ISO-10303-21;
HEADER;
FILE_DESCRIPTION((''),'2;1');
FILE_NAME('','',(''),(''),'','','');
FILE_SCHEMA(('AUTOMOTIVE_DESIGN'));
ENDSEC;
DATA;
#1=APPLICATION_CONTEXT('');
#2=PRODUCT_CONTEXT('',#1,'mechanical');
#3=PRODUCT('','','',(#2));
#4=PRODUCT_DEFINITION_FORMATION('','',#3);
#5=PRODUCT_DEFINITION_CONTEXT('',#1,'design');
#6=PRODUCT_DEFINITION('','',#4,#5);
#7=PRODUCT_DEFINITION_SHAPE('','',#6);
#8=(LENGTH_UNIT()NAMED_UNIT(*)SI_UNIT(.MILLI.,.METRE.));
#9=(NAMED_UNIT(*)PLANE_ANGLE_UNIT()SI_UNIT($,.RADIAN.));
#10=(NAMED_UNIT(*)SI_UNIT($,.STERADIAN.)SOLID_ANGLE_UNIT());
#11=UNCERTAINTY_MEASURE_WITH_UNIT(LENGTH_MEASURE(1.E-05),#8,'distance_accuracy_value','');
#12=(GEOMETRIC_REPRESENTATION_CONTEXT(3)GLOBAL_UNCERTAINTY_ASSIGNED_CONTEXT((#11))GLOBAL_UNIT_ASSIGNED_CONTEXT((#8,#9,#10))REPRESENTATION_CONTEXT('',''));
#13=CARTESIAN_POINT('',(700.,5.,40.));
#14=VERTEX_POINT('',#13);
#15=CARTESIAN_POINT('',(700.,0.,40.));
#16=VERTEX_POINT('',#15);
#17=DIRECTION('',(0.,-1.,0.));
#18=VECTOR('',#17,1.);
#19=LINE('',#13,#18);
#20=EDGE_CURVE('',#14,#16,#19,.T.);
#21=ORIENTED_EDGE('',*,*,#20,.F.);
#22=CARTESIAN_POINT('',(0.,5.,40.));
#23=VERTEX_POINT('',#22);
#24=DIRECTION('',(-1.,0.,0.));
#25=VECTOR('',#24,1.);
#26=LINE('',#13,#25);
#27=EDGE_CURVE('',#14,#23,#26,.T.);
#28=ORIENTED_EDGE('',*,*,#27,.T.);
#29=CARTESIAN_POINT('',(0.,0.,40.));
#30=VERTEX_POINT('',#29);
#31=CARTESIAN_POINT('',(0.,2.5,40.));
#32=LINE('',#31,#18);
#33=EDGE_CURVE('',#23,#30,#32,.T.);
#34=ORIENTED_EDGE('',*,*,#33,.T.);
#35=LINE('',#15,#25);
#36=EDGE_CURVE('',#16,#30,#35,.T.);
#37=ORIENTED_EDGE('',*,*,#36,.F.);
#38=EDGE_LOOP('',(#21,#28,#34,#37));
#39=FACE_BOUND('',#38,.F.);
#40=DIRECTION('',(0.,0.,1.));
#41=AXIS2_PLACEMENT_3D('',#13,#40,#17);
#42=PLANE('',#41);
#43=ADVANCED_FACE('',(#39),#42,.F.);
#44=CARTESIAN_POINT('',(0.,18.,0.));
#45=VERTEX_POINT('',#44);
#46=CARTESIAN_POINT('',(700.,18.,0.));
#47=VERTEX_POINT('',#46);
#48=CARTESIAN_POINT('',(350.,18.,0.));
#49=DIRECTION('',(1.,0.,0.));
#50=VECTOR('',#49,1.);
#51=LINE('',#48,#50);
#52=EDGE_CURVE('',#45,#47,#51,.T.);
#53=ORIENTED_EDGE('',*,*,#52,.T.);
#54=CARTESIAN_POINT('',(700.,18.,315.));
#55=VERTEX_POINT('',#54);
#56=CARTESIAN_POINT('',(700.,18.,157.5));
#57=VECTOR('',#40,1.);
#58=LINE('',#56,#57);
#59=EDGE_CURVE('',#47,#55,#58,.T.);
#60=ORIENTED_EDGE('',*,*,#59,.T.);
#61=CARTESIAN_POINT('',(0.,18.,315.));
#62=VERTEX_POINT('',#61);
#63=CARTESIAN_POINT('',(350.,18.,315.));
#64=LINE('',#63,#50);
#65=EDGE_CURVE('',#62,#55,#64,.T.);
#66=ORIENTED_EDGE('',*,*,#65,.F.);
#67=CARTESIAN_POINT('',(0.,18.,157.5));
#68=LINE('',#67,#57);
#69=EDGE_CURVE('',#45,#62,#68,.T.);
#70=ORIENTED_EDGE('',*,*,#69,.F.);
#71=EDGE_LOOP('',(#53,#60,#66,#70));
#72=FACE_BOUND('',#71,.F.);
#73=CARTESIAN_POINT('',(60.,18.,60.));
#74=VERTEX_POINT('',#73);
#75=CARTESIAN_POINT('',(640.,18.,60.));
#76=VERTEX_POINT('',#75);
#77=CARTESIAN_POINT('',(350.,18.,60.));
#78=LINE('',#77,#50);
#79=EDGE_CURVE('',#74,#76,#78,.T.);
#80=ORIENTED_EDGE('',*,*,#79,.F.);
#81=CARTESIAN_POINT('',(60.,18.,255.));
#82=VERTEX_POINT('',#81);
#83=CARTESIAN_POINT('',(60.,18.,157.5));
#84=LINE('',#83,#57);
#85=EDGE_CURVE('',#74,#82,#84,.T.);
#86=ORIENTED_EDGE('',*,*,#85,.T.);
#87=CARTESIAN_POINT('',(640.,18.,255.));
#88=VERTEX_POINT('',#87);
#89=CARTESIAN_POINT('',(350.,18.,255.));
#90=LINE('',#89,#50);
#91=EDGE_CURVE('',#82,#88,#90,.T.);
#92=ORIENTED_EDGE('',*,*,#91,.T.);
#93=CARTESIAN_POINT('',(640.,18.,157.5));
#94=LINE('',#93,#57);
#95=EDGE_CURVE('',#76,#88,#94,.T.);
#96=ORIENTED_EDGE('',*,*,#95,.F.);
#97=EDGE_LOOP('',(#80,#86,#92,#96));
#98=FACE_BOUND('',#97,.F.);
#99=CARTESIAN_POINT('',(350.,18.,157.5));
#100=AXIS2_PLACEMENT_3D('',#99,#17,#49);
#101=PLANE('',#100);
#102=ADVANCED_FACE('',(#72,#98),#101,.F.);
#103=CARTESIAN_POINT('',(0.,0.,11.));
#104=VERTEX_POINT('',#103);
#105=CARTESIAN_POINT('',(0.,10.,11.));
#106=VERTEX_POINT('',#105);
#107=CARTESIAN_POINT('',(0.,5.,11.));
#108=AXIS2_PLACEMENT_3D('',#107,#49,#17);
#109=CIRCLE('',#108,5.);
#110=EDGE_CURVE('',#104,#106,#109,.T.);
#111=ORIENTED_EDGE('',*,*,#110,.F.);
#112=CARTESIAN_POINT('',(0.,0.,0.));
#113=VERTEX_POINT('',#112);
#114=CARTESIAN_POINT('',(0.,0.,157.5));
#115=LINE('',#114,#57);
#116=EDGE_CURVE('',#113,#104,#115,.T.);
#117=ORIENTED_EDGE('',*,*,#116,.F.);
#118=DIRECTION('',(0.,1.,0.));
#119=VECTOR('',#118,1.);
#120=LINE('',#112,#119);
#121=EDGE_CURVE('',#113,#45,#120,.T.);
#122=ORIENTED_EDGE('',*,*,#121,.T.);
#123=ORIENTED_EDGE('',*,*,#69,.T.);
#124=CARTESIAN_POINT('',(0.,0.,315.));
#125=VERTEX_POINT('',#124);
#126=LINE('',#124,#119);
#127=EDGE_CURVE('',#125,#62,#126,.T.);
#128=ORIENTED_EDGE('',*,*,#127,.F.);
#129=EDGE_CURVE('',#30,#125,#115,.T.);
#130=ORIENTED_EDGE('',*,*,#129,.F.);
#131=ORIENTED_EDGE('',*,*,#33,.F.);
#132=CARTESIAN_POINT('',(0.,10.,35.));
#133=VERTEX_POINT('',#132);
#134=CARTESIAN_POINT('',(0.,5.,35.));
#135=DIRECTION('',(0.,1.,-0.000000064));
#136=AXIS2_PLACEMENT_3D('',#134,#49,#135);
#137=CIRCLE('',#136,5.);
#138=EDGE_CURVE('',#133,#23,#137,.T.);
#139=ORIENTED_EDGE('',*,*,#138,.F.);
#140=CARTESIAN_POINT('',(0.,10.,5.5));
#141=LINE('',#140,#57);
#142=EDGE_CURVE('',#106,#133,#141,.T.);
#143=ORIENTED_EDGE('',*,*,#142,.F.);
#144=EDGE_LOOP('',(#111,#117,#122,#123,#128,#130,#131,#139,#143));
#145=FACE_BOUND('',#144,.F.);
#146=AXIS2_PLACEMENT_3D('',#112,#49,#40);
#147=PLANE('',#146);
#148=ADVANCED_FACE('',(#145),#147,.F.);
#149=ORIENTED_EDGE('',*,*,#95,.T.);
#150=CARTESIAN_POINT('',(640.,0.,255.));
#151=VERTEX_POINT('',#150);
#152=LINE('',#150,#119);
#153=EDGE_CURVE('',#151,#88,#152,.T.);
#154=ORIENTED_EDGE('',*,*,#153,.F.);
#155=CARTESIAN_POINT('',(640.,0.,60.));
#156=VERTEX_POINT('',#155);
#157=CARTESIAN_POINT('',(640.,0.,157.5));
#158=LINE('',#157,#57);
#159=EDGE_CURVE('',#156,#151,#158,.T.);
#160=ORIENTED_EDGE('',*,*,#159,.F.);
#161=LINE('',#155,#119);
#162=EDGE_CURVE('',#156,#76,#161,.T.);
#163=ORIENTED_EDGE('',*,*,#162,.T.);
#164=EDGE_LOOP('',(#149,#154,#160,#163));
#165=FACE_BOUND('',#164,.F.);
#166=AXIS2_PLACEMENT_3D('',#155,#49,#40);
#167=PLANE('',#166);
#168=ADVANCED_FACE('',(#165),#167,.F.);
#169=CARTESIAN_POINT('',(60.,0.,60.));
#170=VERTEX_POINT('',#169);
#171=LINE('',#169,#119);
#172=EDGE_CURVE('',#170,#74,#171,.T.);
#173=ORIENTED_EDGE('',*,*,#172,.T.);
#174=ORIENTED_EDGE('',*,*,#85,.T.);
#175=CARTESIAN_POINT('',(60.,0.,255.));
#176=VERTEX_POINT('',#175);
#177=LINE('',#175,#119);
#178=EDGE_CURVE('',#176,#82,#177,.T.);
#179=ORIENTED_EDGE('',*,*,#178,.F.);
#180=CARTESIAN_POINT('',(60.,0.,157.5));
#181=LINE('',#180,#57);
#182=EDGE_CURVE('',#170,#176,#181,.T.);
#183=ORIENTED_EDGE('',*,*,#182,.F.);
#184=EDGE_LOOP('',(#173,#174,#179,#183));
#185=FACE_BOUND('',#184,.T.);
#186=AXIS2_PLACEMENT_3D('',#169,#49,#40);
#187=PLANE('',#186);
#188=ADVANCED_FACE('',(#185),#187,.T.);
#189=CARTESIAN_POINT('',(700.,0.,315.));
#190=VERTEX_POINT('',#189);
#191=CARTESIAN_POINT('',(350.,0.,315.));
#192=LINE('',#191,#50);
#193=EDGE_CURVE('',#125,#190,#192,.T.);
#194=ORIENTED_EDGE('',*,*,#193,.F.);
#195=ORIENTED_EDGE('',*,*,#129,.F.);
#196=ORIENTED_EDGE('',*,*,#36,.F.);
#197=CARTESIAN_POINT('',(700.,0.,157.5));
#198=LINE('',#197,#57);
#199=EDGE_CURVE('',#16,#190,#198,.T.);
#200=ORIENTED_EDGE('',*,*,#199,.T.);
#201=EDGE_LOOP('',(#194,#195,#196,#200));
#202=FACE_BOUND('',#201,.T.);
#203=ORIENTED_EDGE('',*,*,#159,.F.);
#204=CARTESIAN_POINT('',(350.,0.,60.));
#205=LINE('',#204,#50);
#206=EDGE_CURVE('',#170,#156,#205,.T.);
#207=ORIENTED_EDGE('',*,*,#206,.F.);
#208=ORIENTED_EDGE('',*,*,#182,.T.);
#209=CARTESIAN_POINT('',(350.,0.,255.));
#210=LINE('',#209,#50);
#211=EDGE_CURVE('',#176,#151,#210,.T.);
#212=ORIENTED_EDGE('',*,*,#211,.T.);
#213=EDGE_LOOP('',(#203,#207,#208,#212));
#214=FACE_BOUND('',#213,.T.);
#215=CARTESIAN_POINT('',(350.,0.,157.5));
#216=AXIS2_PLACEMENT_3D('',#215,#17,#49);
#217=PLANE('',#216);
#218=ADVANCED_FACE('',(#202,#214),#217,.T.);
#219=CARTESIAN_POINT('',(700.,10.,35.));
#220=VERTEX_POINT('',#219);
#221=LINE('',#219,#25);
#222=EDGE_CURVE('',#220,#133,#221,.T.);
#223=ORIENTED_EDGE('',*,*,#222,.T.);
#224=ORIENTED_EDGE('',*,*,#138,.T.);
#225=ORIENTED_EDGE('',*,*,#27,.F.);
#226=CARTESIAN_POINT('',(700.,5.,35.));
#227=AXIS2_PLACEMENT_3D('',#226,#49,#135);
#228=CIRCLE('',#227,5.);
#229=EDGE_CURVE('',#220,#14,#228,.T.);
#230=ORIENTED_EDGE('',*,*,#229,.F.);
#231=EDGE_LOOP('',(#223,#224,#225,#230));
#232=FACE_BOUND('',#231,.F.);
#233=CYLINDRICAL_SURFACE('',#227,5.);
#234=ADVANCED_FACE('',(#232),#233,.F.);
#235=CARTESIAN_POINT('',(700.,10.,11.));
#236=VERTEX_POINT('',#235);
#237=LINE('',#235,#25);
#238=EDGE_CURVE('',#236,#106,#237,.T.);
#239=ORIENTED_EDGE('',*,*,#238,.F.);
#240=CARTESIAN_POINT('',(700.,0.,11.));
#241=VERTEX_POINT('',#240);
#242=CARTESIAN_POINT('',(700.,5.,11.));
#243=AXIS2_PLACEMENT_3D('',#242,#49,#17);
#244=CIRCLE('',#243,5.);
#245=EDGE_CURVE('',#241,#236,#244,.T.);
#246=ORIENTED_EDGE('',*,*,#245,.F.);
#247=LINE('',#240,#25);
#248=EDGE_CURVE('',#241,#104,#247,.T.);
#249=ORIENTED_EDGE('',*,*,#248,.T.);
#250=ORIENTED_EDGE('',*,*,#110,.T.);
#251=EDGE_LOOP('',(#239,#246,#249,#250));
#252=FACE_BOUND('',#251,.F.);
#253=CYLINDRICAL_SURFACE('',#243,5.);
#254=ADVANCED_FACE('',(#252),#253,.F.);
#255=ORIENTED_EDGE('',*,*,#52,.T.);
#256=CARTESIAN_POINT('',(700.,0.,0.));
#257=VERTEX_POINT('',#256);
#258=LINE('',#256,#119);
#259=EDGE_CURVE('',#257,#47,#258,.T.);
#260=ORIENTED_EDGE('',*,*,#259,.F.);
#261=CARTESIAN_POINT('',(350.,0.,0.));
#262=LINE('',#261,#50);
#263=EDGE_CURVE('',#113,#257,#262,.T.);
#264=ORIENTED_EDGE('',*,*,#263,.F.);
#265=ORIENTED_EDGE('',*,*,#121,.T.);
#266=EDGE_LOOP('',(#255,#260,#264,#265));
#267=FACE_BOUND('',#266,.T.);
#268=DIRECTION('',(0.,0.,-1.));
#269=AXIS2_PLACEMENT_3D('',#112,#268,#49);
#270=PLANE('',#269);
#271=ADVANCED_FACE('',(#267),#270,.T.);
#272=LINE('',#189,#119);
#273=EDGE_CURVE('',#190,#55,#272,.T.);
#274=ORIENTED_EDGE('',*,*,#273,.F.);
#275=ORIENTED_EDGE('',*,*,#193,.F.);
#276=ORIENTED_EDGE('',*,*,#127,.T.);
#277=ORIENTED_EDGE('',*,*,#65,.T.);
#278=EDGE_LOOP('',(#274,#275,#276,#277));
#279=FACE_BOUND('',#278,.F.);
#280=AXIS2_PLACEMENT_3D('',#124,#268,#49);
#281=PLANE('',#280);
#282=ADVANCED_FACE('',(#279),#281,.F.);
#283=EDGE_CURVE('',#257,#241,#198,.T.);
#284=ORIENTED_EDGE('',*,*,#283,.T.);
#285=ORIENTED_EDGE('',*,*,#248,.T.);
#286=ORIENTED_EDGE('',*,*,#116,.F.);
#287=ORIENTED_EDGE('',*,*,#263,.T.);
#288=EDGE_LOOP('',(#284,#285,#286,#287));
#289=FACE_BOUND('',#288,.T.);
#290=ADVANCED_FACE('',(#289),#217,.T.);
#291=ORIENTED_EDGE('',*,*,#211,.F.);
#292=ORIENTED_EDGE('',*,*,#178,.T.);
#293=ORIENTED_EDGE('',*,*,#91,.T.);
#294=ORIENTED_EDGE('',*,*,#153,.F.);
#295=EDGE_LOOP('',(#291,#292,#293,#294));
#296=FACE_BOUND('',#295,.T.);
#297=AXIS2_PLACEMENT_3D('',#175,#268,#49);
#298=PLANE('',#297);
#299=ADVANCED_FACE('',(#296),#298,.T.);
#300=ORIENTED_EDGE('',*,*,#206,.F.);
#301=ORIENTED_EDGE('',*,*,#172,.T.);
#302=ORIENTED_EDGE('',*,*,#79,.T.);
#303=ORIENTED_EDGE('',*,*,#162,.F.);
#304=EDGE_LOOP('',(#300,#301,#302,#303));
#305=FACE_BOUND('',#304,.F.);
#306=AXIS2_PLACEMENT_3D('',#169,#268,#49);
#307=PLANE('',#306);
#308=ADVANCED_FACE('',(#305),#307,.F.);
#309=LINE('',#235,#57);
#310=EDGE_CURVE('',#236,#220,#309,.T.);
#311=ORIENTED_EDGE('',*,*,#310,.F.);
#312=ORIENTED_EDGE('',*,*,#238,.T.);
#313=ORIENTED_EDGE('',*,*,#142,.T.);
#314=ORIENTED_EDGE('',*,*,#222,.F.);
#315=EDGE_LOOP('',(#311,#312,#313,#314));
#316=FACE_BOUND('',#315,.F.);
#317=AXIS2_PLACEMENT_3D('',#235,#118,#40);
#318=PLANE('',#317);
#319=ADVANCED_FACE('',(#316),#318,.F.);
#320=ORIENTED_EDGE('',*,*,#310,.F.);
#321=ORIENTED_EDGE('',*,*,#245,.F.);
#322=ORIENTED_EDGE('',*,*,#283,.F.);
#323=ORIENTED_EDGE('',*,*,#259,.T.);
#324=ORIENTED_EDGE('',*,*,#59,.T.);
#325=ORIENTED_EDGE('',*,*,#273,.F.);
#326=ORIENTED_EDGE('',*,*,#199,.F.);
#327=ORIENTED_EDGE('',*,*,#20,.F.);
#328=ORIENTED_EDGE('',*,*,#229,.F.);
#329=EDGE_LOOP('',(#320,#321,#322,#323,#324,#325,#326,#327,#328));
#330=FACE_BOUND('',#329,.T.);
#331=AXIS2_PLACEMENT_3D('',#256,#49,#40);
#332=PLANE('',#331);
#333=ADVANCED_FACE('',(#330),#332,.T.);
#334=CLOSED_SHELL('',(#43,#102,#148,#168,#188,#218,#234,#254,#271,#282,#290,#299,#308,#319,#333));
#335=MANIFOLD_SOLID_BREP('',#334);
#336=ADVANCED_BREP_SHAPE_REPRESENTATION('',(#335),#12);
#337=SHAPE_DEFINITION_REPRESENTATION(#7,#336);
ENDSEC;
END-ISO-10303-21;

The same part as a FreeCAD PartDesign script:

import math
import FreeCAD as App
import Part
import Sketcher
from FreeCAD import Vector

doc = App.newDocument("Part")
body = doc.addObject("PartDesign::Body", "Body")

# Sketch on XZ plane
sketch1 = body.newObject("Sketcher::SketchObject", "Sketch")
sketch1.AttachmentSupport = (doc.getObject("XZ_Plane"), [""])
sketch1.MapMode = "FlatFace"
sketch1.addGeometry([
    Part.LineSegment(Vector(0, 315, 0), Vector(0, 0, 0)),  # 0
    Part.LineSegment(Vector(0, 0, 0), Vector(700, 0, 0)),  # 1
    Part.LineSegment(Vector(700, 0, 0), Vector(700, 315, 0)),  # 2
    Part.LineSegment(Vector(700, 315, 0), Vector(0, 315, 0)),  # 3
    Part.LineSegment(Vector(640, 60, 0), Vector(60, 60, 0)),  # 4
    Part.LineSegment(Vector(60, 60, 0), Vector(60, 255, 0)),  # 5
    Part.LineSegment(Vector(60, 255, 0), Vector(640, 255, 0)),  # 6
    Part.LineSegment(Vector(640, 255, 0), Vector(640, 60, 0)),  # 7
], False)
sketch1.addConstraint([
    Sketcher.Constraint("Coincident", 0, 2, 1, 1),
    Sketcher.Constraint("Coincident", 1, 2, 2, 1),
    Sketcher.Constraint("Coincident", 2, 2, 3, 1),
    Sketcher.Constraint("Coincident", 3, 2, 0, 1),
    Sketcher.Constraint("Coincident", 4, 2, 5, 1),
    Sketcher.Constraint("Coincident", 5, 2, 6, 1),
    Sketcher.Constraint("Coincident", 6, 2, 7, 1),
    Sketcher.Constraint("Coincident", 7, 2, 4, 1),
    Sketcher.Constraint("Vertical", 0),
    Sketcher.Constraint("Horizontal", 1),
    Sketcher.Constraint("Vertical", 2),
    Sketcher.Constraint("Horizontal", 3),
    Sketcher.Constraint("Horizontal", 4),
    Sketcher.Constraint("Vertical", 5),
    Sketcher.Constraint("Horizontal", 6),
    Sketcher.Constraint("Vertical", 7),
    Sketcher.Constraint("Coincident", 0, 2, -1, 1),
    Sketcher.Constraint("DistanceX", 1, 1, 1, 2, 700.0),
    Sketcher.Constraint("DistanceX", 4, 2, 4, 1, 580.0),
    Sketcher.Constraint("DistanceY", 0, 2, 0, 1, 315.0),
    Sketcher.Constraint("DistanceY", 5, 1, 5, 2, 195.0),
    Sketcher.Constraint("DistanceX", -1, 1, 4, 2, 60.0),
    Sketcher.Constraint("DistanceY", -1, 1, 4, 2, 60.0),
])
pad1 = body.newObject("PartDesign::Pad", "Pad")
pad1.Profile = sketch1
pad1.Length = 18
pad1.Reversed = True

# Sketch on YZ plane
sketch2 = body.newObject("Sketcher::SketchObject", "Sketch001")
sketch2.AttachmentSupport = (doc.getObject("YZ_Plane"), [""])
sketch2.MapMode = "FlatFace"
sketch2.AttachmentOffset = App.Placement(Vector(0, 0, 700), App.Rotation())
sketch2.addGeometry([
    Part.LineSegment(Vector(5, 40, 0), Vector(0, 40, 0)),  # 0
    Part.LineSegment(Vector(0, 40, 0), Vector(0, 11, 0)),  # 1
    Part.ArcOfCircle(Part.Circle(Vector(5, 11, 0), Vector(0, 0, 1), 5), math.radians(180), math.radians(360)),  # 2
    Part.LineSegment(Vector(10, 11, 0), Vector(10, 35, 0)),  # 3
    Part.ArcOfCircle(Part.Circle(Vector(5, 35, 0), Vector(0, 0, 1), 5), math.radians(0), math.radians(90)),  # 4
], False)
sketch2.addConstraint([
    Sketcher.Constraint("Coincident", 0, 2, 1, 1),
    Sketcher.Constraint("Tangent", 1, 2, 2, 1),
    Sketcher.Constraint("Tangent", 2, 2, 3, 1),
    Sketcher.Constraint("Tangent", 3, 2, 4, 1),
    Sketcher.Constraint("Tangent", 4, 2, 0, 1),
    Sketcher.Constraint("Horizontal", 0),
    Sketcher.Constraint("Vertical", 1),
    Sketcher.Constraint("Vertical", 3),
    Sketcher.Constraint("Equal", 2, 4),
    Sketcher.Constraint("PointOnObject", 0, 2, -2),
    Sketcher.Constraint("Radius", 2, 5.0),
    Sketcher.Constraint("DistanceY", 1, 2, 1, 1, 29.0),
    Sketcher.Constraint("DistanceY", -1, 1, 2, 3, 11.0),
])
pocket1 = body.newObject("PartDesign::Pocket", "Pocket")
pocket1.Profile = sketch2
pocket1.Length = 940

doc.recompute()
